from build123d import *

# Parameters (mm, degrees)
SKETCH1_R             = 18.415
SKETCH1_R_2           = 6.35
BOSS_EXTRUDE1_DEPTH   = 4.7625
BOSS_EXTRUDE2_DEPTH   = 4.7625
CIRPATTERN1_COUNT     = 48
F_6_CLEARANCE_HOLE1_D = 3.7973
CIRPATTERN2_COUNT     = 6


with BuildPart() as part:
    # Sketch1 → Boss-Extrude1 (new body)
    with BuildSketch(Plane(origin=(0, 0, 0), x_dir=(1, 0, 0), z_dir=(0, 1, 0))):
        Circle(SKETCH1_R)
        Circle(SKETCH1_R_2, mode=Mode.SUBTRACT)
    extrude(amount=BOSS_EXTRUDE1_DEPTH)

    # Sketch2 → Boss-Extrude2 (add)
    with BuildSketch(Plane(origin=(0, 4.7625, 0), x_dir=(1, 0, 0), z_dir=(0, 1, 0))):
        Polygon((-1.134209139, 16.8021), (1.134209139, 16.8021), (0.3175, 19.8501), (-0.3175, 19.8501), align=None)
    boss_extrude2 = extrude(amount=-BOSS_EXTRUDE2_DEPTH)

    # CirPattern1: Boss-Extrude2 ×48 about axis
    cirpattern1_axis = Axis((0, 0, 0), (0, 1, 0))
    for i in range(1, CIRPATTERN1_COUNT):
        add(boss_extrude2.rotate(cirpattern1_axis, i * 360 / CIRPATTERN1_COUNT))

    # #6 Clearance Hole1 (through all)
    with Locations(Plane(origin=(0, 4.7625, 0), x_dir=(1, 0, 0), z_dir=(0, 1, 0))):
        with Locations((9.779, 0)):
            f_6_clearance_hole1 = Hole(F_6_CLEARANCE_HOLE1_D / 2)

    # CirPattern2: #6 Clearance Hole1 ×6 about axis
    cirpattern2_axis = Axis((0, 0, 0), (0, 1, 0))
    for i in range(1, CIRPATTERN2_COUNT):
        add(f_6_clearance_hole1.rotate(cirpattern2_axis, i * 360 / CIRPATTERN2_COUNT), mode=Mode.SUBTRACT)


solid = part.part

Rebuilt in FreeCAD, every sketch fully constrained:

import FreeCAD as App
import Part
import Sketcher
from FreeCAD import Vector
Q = App.Units.Quantity

doc = App.newDocument("Part")
body = doc.addObject("PartDesign::Body", "Body")

# Sketch on XZ plane
sketch1 = body.newObject("Sketcher::SketchObject", "Sketch")
sketch1.AttachmentSupport = (doc.getObject("XZ_Plane"), [""])
sketch1.MapMode = "FlatFace"
sketch1.addGeometry(Part.Circle(Vector(0, 0, 0), Vector(0, 0, 1), 18.415), False)
sketch1.addGeometry(Part.Circle(Vector(0, 0, 0), Vector(0, 0, 1), 6.35), False)
sketch1.addConstraint(Sketcher.Constraint("Coincident", 0, 3, -1, 1))
sketch1.addConstraint(Sketcher.Constraint("Coincident", 1, 3, -1, 1))
sketch1.addConstraint(Sketcher.Constraint("Diameter", 1, Q("0.5 in")))
sketch1.addConstraint(Sketcher.Constraint("Diameter", 0, Q("1.45 in")))
pad1 = body.newObject("PartDesign::Pad", "Pad")
pad1.Profile = sketch1
pad1.Length = Q("0.1875 in")
pad1.Reversed = True

# Sketch on XZ plane
sketch2 = body.newObject("Sketcher::SketchObject", "Sketch001")
sketch2.AttachmentSupport = (doc.getObject("XZ_Plane"), [""])
sketch2.MapMode = "FlatFace"
sketch2.AttachmentOffset = App.Placement(Vector(0, 0, -0.1875 * 25.4), App.Rotation())
sketch2.addGeometry(Part.LineSegment(Vector(-1.134209, -16.8021, 0), Vector(1.134209, -16.8021, 0)), False)
sketch2.addGeometry(Part.LineSegment(Vector(1.134209, -16.8021, 0), Vector(0.3175, -19.8501, 0)), False)
sketch2.addGeometry(Part.LineSegment(Vector(0.3175, -19.8501, 0), Vector(-0.3175, -19.8501, 0)), False)
sketch2.addGeometry(Part.LineSegment(Vector(-0.3175, -19.8501, 0), Vector(-1.134209, -16.8021, 0)), False)
sketch2.addConstraint(Sketcher.Constraint("Coincident", 0, 2, 1, 1))
sketch2.addConstraint(Sketcher.Constraint("Coincident", 1, 2, 2, 1))
sketch2.addConstraint(Sketcher.Constraint("Coincident", 2, 2, 3, 1))
sketch2.addConstraint(Sketcher.Constraint("Coincident", 3, 2, 0, 1))
sketch2.addConstraint(Sketcher.Constraint("Horizontal", 0))
sketch2.addConstraint(Sketcher.Constraint("Horizontal", 2))
sketch2.addConstraint(Sketcher.Constraint("Equal", 1, 3))
sketch2.addConstraint(Sketcher.Constraint("Angle", 1, Q("-105 deg")))
sketch2.addConstraint(Sketcher.Constraint("DistanceX", 2, 2, 2, 1, Q("0.025 in")))
sketch2.addConstraint(Sketcher.Constraint("DistanceY", 1, 2, 0, 2, Q("0.12 in")))
sketch2.addConstraint(Sketcher.Constraint("DistanceY", 0, 2, -1, 1, Q("0.6615 in")))
sketch2.addConstraint(Sketcher.Constraint("DistanceX", -1, 1, 1, 2, Q("0.0125 in")))
pad2 = body.newObject("PartDesign::Pad", "Pad001")
pad2.Profile = sketch2
pad2.Length = Q("0.1875 in")
doc.recompute()

polarpattern = body.newObject("PartDesign::PolarPattern", "PolarPattern")
polarpattern.Originals = [pad2]
polarpattern.Axis = (doc.getObject("Y_Axis"), [""])
polarpattern.Angle = 360
polarpattern.Occurrences = 48
body.Tip = polarpattern

# Sketch on XZ plane
sketch3 = body.newObject("Sketcher::SketchObject", "Sketch002")
sketch3.AttachmentSupport = (doc.getObject("XZ_Plane"), [""])
sketch3.MapMode = "FlatFace"
sketch3.AttachmentOffset = App.Placement(Vector(0, 0, -0.1875 * 25.4), App.Rotation())
sketch3.addGeometry(Part.Circle(Vector(9.779, 0, 0), Vector(0, 0, 1), 1.89865), False)
sketch3.addConstraint(Sketcher.Constraint("PointOnObject", 0, 3, -1))
sketch3.addConstraint(Sketcher.Constraint("Diameter", 0, Q("0.1495 in")))
sketch3.addConstraint(Sketcher.Constraint("DistanceX", -1, 1, 0, 3, Q("0.385 in")))
doc.recompute()
hole = body.newObject("PartDesign::Hole", "Hole")
hole.Profile = sketch3
hole.ThreadType = "None"
hole.Diameter = Q("0.1495 in")
hole.DepthType = "ThroughAll"
hole.Reversed = True
doc.recompute()

polarpattern2 = body.newObject("PartDesign::PolarPattern", "PolarPattern001")
polarpattern2.Originals = [hole]
polarpattern2.Axis = (doc.getObject("Y_Axis"), [""])
polarpattern2.Angle = 360
polarpattern2.Occurrences = 6
body.Tip = polarpattern2

doc.recompute()
